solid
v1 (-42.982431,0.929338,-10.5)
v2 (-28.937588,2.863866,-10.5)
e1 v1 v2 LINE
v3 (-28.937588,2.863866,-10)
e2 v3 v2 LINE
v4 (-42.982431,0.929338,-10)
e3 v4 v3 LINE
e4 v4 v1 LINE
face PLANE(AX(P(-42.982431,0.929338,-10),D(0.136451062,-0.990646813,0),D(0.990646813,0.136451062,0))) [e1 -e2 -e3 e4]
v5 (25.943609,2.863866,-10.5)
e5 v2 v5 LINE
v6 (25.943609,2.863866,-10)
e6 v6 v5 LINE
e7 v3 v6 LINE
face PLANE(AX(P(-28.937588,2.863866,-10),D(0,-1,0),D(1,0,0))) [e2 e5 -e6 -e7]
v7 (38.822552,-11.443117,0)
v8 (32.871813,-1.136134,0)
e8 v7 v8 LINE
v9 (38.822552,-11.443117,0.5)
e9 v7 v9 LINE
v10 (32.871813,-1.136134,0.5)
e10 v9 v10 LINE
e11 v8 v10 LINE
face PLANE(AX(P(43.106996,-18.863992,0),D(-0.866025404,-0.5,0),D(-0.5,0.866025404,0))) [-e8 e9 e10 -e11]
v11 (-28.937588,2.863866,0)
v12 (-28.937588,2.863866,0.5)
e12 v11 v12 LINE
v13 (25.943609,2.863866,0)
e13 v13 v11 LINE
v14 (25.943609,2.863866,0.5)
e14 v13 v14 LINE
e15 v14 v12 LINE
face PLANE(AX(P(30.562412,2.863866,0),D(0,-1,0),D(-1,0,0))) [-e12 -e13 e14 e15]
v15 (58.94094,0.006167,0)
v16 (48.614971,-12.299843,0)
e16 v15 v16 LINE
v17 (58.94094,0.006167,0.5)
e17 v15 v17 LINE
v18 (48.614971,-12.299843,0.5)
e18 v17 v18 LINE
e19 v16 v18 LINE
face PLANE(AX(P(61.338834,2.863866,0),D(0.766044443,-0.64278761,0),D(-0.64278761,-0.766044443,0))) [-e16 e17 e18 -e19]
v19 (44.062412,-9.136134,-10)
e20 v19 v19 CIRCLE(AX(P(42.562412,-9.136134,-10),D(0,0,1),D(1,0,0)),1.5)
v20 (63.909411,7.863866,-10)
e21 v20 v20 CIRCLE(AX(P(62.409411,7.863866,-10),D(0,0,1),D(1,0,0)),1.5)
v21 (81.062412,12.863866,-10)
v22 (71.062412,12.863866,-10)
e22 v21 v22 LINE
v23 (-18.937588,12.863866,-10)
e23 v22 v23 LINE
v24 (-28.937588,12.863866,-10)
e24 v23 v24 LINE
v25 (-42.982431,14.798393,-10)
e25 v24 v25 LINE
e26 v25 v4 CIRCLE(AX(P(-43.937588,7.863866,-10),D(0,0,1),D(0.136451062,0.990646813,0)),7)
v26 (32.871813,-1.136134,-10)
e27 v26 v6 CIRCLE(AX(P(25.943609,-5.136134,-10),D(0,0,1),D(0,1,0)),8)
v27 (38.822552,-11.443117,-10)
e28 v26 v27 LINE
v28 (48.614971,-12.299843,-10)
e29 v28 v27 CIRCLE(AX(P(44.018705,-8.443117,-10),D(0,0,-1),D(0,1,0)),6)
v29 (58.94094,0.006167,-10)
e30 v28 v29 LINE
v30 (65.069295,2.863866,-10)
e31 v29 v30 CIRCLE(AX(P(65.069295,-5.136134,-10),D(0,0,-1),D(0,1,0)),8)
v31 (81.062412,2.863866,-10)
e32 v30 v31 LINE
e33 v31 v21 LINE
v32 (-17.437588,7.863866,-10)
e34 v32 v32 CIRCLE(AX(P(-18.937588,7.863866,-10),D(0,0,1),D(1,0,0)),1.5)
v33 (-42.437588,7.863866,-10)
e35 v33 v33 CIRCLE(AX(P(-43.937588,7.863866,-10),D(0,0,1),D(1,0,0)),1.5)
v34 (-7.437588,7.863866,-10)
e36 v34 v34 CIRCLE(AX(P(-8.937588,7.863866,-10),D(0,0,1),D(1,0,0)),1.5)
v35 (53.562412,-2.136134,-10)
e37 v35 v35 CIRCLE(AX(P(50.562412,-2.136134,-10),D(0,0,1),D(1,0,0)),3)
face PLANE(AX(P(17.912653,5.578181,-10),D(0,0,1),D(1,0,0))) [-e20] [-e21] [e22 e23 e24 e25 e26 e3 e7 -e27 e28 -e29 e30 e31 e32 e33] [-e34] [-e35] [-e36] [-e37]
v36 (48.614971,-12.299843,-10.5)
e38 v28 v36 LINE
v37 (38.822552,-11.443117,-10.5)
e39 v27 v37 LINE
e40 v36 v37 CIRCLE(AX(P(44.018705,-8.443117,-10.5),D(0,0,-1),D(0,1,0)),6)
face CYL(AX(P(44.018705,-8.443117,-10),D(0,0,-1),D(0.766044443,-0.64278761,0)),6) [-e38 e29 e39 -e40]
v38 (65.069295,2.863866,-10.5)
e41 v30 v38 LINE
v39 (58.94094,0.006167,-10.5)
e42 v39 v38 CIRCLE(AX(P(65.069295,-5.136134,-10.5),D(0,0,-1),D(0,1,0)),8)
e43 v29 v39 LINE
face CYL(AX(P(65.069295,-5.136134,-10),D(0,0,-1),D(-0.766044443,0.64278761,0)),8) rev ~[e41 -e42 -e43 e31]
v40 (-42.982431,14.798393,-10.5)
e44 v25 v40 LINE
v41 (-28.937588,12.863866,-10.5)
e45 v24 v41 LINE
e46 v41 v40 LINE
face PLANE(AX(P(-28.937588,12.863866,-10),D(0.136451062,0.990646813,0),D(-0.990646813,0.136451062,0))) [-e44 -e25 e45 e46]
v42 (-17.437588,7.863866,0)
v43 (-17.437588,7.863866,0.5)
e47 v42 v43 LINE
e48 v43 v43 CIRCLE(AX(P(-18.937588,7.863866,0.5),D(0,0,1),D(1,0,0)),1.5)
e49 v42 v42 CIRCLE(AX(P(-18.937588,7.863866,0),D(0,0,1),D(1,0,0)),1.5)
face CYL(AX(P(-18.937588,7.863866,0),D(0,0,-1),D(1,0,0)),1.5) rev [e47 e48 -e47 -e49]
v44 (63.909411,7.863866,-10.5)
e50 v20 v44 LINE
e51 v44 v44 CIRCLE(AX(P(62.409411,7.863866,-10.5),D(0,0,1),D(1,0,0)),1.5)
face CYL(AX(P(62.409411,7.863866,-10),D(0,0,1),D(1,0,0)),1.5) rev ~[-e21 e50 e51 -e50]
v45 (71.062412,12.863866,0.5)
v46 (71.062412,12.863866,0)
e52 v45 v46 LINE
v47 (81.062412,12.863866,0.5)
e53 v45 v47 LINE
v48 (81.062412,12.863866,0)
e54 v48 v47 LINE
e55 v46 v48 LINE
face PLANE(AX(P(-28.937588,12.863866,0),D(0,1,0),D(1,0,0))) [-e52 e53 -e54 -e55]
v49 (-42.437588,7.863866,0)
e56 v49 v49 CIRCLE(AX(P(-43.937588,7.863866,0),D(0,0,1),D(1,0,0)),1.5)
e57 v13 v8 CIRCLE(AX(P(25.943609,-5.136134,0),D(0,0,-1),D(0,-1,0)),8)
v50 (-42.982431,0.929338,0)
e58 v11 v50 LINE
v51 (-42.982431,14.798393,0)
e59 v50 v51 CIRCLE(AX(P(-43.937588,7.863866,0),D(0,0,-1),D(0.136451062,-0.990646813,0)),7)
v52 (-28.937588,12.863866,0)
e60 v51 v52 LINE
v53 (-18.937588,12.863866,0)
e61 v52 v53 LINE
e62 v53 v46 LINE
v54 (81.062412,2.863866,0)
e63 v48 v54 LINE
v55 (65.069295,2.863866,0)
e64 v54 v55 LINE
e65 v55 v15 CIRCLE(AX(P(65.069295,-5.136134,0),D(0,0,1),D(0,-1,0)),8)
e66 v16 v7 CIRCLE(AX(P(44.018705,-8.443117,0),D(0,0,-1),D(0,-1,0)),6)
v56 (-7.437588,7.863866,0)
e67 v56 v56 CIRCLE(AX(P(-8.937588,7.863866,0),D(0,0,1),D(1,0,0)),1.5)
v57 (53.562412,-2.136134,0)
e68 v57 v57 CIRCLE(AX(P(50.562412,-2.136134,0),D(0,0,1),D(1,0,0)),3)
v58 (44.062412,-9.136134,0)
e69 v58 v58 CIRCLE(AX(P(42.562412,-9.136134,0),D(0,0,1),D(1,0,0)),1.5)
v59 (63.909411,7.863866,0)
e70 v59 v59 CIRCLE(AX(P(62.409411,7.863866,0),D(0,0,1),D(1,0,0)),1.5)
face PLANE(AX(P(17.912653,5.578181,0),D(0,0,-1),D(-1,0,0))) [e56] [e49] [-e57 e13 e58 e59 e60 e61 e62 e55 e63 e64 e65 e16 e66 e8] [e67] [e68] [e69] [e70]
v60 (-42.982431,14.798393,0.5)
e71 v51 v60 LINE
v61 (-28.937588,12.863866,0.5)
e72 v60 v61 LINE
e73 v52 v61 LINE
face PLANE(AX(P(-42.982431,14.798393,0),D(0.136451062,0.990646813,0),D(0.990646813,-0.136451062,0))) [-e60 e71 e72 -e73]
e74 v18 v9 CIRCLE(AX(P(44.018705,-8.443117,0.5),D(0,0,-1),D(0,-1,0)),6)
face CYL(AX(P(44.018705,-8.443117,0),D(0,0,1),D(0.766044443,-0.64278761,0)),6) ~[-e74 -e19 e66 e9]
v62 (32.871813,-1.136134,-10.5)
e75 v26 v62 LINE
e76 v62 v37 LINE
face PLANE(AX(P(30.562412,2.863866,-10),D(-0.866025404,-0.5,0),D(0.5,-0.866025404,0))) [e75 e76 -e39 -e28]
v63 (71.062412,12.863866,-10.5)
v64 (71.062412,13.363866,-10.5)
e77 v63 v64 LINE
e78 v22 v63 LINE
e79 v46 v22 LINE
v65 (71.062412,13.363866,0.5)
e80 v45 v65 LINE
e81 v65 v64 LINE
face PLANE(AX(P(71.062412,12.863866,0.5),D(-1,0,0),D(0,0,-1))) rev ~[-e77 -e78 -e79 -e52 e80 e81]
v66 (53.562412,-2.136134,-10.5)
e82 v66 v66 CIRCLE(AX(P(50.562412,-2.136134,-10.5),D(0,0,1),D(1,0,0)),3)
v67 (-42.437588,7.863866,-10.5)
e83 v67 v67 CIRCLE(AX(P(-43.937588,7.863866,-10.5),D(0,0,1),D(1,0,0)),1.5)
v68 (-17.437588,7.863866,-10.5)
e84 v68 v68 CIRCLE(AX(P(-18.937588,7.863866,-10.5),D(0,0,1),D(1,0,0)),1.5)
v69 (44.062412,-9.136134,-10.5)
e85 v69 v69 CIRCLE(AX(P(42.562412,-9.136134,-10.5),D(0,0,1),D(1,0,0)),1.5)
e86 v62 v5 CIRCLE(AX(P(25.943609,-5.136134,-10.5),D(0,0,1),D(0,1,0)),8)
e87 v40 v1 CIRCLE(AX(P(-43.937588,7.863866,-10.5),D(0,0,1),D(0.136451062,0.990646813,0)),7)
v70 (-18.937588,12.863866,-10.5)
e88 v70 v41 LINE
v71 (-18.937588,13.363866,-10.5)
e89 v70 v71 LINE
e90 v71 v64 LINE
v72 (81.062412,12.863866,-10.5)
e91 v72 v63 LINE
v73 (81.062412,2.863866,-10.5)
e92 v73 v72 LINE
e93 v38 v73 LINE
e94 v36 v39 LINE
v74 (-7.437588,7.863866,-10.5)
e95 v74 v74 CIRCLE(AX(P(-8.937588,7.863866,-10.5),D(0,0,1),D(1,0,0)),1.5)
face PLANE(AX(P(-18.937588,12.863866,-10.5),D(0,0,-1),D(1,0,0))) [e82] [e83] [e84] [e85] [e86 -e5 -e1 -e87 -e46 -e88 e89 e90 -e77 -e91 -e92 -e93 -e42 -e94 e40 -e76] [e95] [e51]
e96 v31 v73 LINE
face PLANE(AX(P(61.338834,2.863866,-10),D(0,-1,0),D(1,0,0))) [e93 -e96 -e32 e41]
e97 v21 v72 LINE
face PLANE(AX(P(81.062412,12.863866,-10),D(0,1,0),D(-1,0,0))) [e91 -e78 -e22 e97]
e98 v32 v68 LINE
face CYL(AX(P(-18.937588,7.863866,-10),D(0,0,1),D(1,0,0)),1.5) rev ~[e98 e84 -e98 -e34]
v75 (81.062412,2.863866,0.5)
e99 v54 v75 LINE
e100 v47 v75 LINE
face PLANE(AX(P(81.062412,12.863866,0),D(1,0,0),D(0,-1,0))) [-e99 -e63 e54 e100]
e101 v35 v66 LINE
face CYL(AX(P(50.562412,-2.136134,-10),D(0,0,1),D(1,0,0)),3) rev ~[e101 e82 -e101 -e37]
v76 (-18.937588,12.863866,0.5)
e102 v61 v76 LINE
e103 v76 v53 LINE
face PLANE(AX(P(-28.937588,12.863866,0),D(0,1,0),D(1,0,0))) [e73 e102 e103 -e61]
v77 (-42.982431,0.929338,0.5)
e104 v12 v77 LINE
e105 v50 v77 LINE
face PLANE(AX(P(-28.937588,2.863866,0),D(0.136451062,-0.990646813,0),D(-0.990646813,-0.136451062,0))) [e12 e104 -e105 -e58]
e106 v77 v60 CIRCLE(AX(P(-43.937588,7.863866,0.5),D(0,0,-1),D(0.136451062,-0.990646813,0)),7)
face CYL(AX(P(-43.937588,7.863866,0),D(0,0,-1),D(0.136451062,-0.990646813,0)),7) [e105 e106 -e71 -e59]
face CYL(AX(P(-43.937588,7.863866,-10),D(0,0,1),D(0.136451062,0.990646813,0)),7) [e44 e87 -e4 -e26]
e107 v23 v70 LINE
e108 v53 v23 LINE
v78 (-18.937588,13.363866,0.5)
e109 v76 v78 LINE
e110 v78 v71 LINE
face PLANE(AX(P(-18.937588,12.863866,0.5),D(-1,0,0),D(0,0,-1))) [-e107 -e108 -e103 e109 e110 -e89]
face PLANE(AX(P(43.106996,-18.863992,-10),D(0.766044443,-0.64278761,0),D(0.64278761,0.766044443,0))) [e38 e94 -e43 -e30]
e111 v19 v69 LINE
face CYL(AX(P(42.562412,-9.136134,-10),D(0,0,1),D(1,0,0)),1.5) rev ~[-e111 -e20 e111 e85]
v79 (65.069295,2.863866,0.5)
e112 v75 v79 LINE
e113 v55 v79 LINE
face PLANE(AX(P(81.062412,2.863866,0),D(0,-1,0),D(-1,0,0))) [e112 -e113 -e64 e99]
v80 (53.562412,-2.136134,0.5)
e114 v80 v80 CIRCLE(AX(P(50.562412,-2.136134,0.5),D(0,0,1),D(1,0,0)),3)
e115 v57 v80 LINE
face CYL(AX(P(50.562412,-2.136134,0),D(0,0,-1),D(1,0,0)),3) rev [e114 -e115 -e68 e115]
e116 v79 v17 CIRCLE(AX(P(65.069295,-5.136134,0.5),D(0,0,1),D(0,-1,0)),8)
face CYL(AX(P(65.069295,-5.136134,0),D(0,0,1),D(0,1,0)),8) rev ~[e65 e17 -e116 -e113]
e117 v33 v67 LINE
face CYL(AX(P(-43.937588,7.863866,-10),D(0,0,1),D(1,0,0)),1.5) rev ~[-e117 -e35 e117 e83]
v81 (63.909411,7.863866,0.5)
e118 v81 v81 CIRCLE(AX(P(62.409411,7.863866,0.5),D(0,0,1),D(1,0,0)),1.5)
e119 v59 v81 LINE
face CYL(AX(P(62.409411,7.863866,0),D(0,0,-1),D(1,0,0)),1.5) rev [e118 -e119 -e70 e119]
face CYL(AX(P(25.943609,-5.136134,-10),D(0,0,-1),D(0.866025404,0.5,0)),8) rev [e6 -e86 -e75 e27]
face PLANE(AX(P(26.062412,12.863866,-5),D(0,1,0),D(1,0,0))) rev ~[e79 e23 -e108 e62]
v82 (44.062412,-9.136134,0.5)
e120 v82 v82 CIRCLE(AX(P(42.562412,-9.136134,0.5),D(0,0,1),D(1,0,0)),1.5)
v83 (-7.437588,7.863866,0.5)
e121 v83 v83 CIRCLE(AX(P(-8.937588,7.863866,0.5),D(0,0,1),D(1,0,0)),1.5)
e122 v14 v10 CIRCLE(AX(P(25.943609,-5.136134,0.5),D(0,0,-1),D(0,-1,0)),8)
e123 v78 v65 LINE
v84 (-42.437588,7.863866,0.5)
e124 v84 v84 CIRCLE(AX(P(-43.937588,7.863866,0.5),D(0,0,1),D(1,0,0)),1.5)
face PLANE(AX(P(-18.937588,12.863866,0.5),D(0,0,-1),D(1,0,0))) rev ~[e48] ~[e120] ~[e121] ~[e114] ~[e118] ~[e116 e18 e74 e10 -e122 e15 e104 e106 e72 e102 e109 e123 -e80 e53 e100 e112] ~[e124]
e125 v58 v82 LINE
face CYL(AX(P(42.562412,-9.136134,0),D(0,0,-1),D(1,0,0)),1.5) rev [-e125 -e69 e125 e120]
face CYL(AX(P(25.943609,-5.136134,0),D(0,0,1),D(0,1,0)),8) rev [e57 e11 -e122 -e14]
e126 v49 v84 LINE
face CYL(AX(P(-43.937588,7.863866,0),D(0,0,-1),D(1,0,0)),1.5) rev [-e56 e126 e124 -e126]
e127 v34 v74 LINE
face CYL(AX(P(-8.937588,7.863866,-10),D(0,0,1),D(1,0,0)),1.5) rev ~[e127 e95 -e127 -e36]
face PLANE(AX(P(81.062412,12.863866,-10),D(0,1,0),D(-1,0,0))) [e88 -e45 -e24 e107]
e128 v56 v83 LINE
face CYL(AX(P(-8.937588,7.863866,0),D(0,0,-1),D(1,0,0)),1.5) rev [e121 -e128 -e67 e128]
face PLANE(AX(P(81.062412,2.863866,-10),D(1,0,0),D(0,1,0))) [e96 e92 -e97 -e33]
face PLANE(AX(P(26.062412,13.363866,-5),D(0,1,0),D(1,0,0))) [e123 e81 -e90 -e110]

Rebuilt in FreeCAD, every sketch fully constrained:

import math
import FreeCAD as App
import Part
import Sketcher
from FreeCAD import Vector
Q = App.Units.Quantity


def edges_at(feature, points):
    """Names of the edges that pass closest to the given points."""
    edges = feature.Shape.Edges
    near = lambda p: min(range(len(edges)), key=lambda i: edges[i].distToShape(Part.Vertex(*p))[0])
    return sorted({f"Edge{near(p) + 1}" for p in points})


def add_polygon(sketch, points):
    """Adds a closed chain of lines whose ends are joined by coincident constraints."""
    first, n = sketch.GeometryCount, len(points)
    for a, b in zip(points, points[1:] + points[:1]):
        sketch.addGeometry(Part.LineSegment(App.Vector(*a, 0), App.Vector(*b, 0)), False)
    for i in range(n):
        sketch.addConstraint(Sketcher.Constraint("Coincident", first + i, 2, first + (i + 1) % n, 1))

doc = App.newDocument("Part")
body = doc.addObject("PartDesign::Body", "Body")

# Sketch on XY plane
sketch1 = body.newObject("Sketcher::SketchObject", "Sketch")
sketch1.AttachmentSupport = (doc.getObject("XY_Plane"), [""])
sketch1.MapMode = "FlatFace"
sketch1.addGeometry([
    Part.LineSegment(Vector(81.062412, 12.863866, 0), Vector(-28.937588, 12.863866, 0)),  # 0
    Part.LineSegment(Vector(-28.937588, 12.863866, 0), Vector(-42.982431, 14.798393, 0)),  # 1
    Part.ArcOfCircle(Part.Circle(Vector(-43.937588, 7.863866, 0), Vector(0, 0, 1), 7), math.radians(82.157464), math.radians(277.842536)),  # 2
    Part.LineSegment(Vector(-42.982431, 0.929338, 0), Vector(-28.937588, 2.863866, 0)),  # 3
    Part.LineSegment(Vector(-28.937588, 2.863866, 0), Vector(30.562412, 2.863866, 0)),  # 4
    Part.LineSegment(Vector(30.562412, 2.863866, 0), Vector(43.106996, -18.863992, 0)),  # 5
    Part.LineSegment(Vector(43.106996, -18.863992, 0), Vector(61.338834, 2.863866, 0)),  # 6
    Part.LineSegment(Vector(61.338834, 2.863866, 0), Vector(81.062412, 2.863866, 0)),  # 7
    Part.LineSegment(Vector(81.062412, 2.863866, 0), Vector(81.062412, 12.863866, 0)),  # 8
    Part.Circle(Vector(42.562412, -9.136134, 0), Vector(0, 0, 1), 1.5),  # 9
    Part.Circle(Vector(50.562412, -2.136134, 0), Vector(0, 0, 1), 3),  # 10
    Part.Circle(Vector(62.409411, 7.863866, 0), Vector(0, 0, 1), 1.5),  # 11
    Part.Circle(Vector(-8.937588, 7.863866, 0), Vector(0, 0, 1), 1.5),  # 12
    Part.Circle(Vector(-18.937588, 7.863866, 0), Vector(0, 0, 1), 1.5),  # 13
    Part.Circle(Vector(-43.937588, 7.863866, 0), Vector(0, 0, 1), 1.5),  # 14
], False)
sketch1.addConstraint([
    Sketcher.Constraint("Coincident", 0, 2, 1, 1),
    Sketcher.Constraint("Tangent", 1, 2, 2, 1),
    Sketcher.Constraint("Tangent", 2, 2, 3, 1),
    Sketcher.Constraint("Coincident", 3, 2, 4, 1),
    Sketcher.Constraint("Coincident", 4, 2, 5, 1),
    Sketcher.Constraint("Coincident", 5, 2, 6, 1),
    Sketcher.Constraint("Coincident", 6, 2, 7, 1),
    Sketcher.Constraint("Coincident", 7, 2, 8, 1),
    Sketcher.Constraint("Coincident", 8, 2, 0, 1),
    Sketcher.Constraint("Horizontal", 0),
    Sketcher.Constraint("Horizontal", 4),
    Sketcher.Constraint("Horizontal", 7),
    Sketcher.Constraint("Vertical", 8),
    Sketcher.Constraint("Coincident", 14, 3, 2, 3),
    Sketcher.Constraint("Equal", 9, 11),
    Sketcher.Constraint("Equal", 11, 12),
    Sketcher.Constraint("Equal", 12, 13),
    Sketcher.Constraint("Equal", 13, 14),
    Sketcher.Constraint("Horizontal", 2, 3, 11, 3),
    Sketcher.Constraint("Horizontal", 11, 3, 12, 3),
    Sketcher.Constraint("Horizontal", 12, 3, 13, 3),
    Sketcher.Constraint("Horizontal", 4, 2, 6, 2),
    Sketcher.Constraint("Vertical", 1, 2, 2, 2),
    Sketcher.Constraint("Vertical", 0, 2, 3, 2),
    Sketcher.Constraint("Diameter", 9, Q("3 mm")),
    Sketcher.Constraint("Diameter", 10, Q("6 mm")),
    Sketcher.Constraint("Radius", 2, Q("7 mm")),
    Sketcher.Constraint("DistanceX", 0, 2, 0, 1, Q("110 mm")),
    Sketcher.Constraint("DistanceY", 8, 1, 8, 2, Q("10 mm")),
    Sketcher.Constraint("Angle", 5, Q("-60 deg")),
    Sketcher.Constraint("Angle", 6, Q("50 deg")),
    Sketcher.Constraint("DistanceX", 4, 1, 4, 2, Q("59.5 mm")),
    Sketcher.Constraint("DistanceY", 9, 3, 2, 3, Q("17 mm")),
    Sketcher.Constraint("DistanceX", 9, 3, 10, 3, Q("8 mm")),
    Sketcher.Constraint("DistanceY", 9, 3, 10, 3, Q("7 mm")),
    Sketcher.Constraint("DistanceX", 2, 3, 12, 3, Q("35 mm")),
    Sketcher.Constraint("DistanceX", 13, 3, 12, 3, Q("10 mm")),
    Sketcher.Constraint("DistanceX", 0, 2, 13, 3, Q("10 mm")),
    Sketcher.Constraint("DistanceX", 4, 2, 9, 3, Q("12 mm")),
    Sketcher.Constraint("DistanceX", 10, 3, 11, 3, Q("11.846999 mm")),
    Sketcher.Constraint("Distance", 5, Q("25.089169 mm")),
    Sketcher.Constraint("DistanceX", 2, 3, -1, 1, Q("43.937588 mm")),
    Sketcher.Constraint("DistanceY", -1, 1, 2, 2, Q("0.929338 mm")),
])
pad1 = body.newObject("PartDesign::Pad", "Pad")
pad1.Profile = sketch1
pad1.Length = 0.5
body2 = doc.addObject("PartDesign::Body", "Body001")

# Sketch on XY plane
sketch2 = body2.newObject("Sketcher::SketchObject", "Sketch001")
sketch2.AttachmentSupport = (doc.getObject("XY_Plane001"), [""])
sketch2.MapMode = "FlatFace"
sketch2.AttachmentOffset = App.Placement(Vector(0, 0, -10), App.Rotation())
sketch2.addGeometry([
    Part.LineSegment(Vector(43.106996, -18.863992, 0), Vector(61.338834, 2.863866, 0)),  # 0
    Part.LineSegment(Vector(61.338834, 2.863866, 0), Vector(81.062412, 2.863866, 0)),  # 1
    Part.LineSegment(Vector(81.062412, 2.863866, 0), Vector(81.062412, 12.863866, 0)),  # 2
    Part.LineSegment(Vector(81.062412, 12.863866, 0), Vector(-28.937588, 12.863866, 0)),  # 3
    Part.LineSegment(Vector(-28.937588, 12.863866, 0), Vector(-42.982431, 14.798393, 0)),  # 4
    Part.ArcOfCircle(Part.Circle(Vector(-43.937588, 7.863866, 0), Vector(0, 0, 1), 7), math.radians(82.157464), math.radians(277.842536)),  # 5
    Part.LineSegment(Vector(-42.982431, 0.929338, 0), Vector(-28.937588, 2.863866, 0)),  # 6
    Part.LineSegment(Vector(-28.937588, 2.863866, 0), Vector(30.562412, 2.863866, 0)),  # 7
    Part.LineSegment(Vector(30.562412, 2.863866, 0), Vector(43.106996, -18.863992, 0)),  # 8
    Part.Circle(Vector(42.562412, -9.136134, 0), Vector(0, 0, 1), 1.5),  # 9
    Part.Circle(Vector(50.562412, -2.136134, 0), Vector(0, 0, 1), 3),  # 10
    Part.Circle(Vector(-43.937588, 7.863866, 0), Vector(0, 0, 1), 1.5),  # 11
    Part.Circle(Vector(-18.937588, 7.863866, 0), Vector(0, 0, 1), 1.5),  # 12
    Part.Circle(Vector(-8.937588, 7.863866, 0), Vector(0, 0, 1), 1.5),  # 13
    Part.Circle(Vector(62.409411, 7.863866, 0), Vector(0, 0, 1), 1.5),  # 14
], False)
sketch2.addConstraint([
    Sketcher.Constraint("Coincident", 0, 2, 1, 1),
    Sketcher.Constraint("Coincident", 1, 2, 2, 1),
    Sketcher.Constraint("Coincident", 2, 2, 3, 1),
    Sketcher.Constraint("Coincident", 3, 2, 4, 1),
    Sketcher.Constraint("Tangent", 4, 2, 5, 1),
    Sketcher.Constraint("Tangent", 5, 2, 6, 1),
    Sketcher.Constraint("Coincident", 6, 2, 7, 1),
    Sketcher.Constraint("Coincident", 7, 2, 8, 1),
    Sketcher.Constraint("Coincident", 8, 2, 0, 1),
    Sketcher.Constraint("Horizontal", 1),
    Sketcher.Constraint("Vertical", 2),
    Sketcher.Constraint("Horizontal", 3),
    Sketcher.Constraint("Horizontal", 7),
    Sketcher.Constraint("Coincident", 11, 3, 5, 3),
    Sketcher.Constraint("Equal", 9, 11),
    Sketcher.Constraint("Equal", 11, 12),
    Sketcher.Constraint("Equal", 12, 13),
    Sketcher.Constraint("Equal", 13, 14),
    Sketcher.Constraint("Horizontal", 11, 3, 12, 3),
    Sketcher.Constraint("Horizontal", 12, 3, 13, 3),
    Sketcher.Constraint("Horizontal", 13, 3, 14, 3),
    Sketcher.Constraint("Horizontal", 1, 2, 6, 2),
    Sketcher.Constraint("Vertical", 4, 2, 5, 2),
    Sketcher.Constraint("Vertical", 3, 2, 6, 2),
    Sketcher.Constraint("Diameter", 9, Q("3 mm")),
    Sketcher.Constraint("Diameter", 10, Q("6 mm")),
    Sketcher.Constraint("Radius", 5, Q("7 mm")),
    Sketcher.Constraint("DistanceX", 3, 2, 3, 1, Q("110 mm")),
    Sketcher.Constraint("DistanceY", 2, 1, 2, 2, Q("10 mm")),
    Sketcher.Constraint("Angle", 0, Q("50 deg")),
    Sketcher.Constraint("Angle", 8, Q("-60 deg")),
    Sketcher.Constraint("DistanceX", 7, 1, 7, 2, Q("59.5 mm")),
    Sketcher.Constraint("DistanceY", 9, 3, 5, 3, Q("17 mm")),
    Sketcher.Constraint("DistanceX", 9, 3, 10, 3, Q("8 mm")),
    Sketcher.Constraint("DistanceY", 9, 3, 10, 3, Q("7 mm")),
    Sketcher.Constraint("DistanceX", 5, 3, 12, 3, Q("25 mm")),
    Sketcher.Constraint("DistanceX", 12, 3, 13, 3, Q("10 mm")),
    Sketcher.Constraint("DistanceX", 13, 3, 1, 2, Q("90 mm")),
    Sketcher.Constraint("DistanceX", 7, 2, 9, 3, Q("12 mm")),
    Sketcher.Constraint("DistanceX", 10, 3, 14, 3, Q("11.846999 mm")),
    Sketcher.Constraint("Distance", 8, Q("25.089169 mm")),
    Sketcher.Constraint("DistanceX", 5, 3, -1, 1, Q("43.937588 mm")),
    Sketcher.Constraint("DistanceY", -1, 1, 5, 2, Q("0.929338 mm")),
])
pad2 = body2.newObject("PartDesign::Pad", "Pad001")
pad2.Profile = sketch2
pad2.Length = 0.5
pad2.Reversed = True
body.AllowCompound = True
doc.recompute()

boolean = body.newObject("PartDesign::Boolean", "Boolean")
boolean.Type = "Fuse"
boolean.addObjects([body2])

# Sketch on XZ plane
sketch3 = body.newObject("Sketcher::SketchObject", "Sketch002")
sketch3.AttachmentSupport = (doc.getObject("XZ_Plane"), [""])
sketch3.MapMode = "FlatFace"
sketch3.AttachmentOffset = App.Placement(Vector(0, 0, -12.863866), App.Rotation())
add_polygon(sketch3, [(-18.937588, -10.5), (-18.937588, 0.5), (71.062412, 0.5), (71.062412, -10.5)])  # lines 0-3
sketch3.addConstraint([
    Sketcher.Constraint("Vertical", 0),
    Sketcher.Constraint("Horizontal", 1),
    Sketcher.Constraint("Vertical", 2),
    Sketcher.Constraint("Horizontal", 3),
    Sketcher.Constraint("DistanceX", 1, 1, 1, 2, Q("90 mm")),
    Sketcher.Constraint("DistanceY", 0, 1, 0, 2, Q("11 mm")),
    Sketcher.Constraint("DistanceY", -1, 1, 0, 2, Q("0.5 mm")),
    Sketcher.Constraint("DistanceX", 0, 2, -1, 1, Q("18.937588 mm")),
])
pad3 = body.newObject("PartDesign::Pad", "Pad002")
pad3.Profile = sketch3
pad3.Length = 0.5
pad3.Reversed = True
doc.recompute()

fillet = body.newObject("PartDesign::Fillet", "Fillet")
fillet.Base = (pad3, edges_at(pad3, [
    (61.339, 2.864, 0.25),
    (30.562, 2.864, 0.25),
    (30.562, 2.864, -10.25),
    (61.339, 2.864, -10.25),
]))
fillet.Radius = 8
doc.recompute()

fillet2 = body.newObject("PartDesign::Fillet", "Fillet001")
fillet2.Base = (fillet, edges_at(fillet, [(43.107, -18.864, 0.25), (43.107, -18.864, -10.25)]))
fillet2.Radius = 6

doc.recompute()
